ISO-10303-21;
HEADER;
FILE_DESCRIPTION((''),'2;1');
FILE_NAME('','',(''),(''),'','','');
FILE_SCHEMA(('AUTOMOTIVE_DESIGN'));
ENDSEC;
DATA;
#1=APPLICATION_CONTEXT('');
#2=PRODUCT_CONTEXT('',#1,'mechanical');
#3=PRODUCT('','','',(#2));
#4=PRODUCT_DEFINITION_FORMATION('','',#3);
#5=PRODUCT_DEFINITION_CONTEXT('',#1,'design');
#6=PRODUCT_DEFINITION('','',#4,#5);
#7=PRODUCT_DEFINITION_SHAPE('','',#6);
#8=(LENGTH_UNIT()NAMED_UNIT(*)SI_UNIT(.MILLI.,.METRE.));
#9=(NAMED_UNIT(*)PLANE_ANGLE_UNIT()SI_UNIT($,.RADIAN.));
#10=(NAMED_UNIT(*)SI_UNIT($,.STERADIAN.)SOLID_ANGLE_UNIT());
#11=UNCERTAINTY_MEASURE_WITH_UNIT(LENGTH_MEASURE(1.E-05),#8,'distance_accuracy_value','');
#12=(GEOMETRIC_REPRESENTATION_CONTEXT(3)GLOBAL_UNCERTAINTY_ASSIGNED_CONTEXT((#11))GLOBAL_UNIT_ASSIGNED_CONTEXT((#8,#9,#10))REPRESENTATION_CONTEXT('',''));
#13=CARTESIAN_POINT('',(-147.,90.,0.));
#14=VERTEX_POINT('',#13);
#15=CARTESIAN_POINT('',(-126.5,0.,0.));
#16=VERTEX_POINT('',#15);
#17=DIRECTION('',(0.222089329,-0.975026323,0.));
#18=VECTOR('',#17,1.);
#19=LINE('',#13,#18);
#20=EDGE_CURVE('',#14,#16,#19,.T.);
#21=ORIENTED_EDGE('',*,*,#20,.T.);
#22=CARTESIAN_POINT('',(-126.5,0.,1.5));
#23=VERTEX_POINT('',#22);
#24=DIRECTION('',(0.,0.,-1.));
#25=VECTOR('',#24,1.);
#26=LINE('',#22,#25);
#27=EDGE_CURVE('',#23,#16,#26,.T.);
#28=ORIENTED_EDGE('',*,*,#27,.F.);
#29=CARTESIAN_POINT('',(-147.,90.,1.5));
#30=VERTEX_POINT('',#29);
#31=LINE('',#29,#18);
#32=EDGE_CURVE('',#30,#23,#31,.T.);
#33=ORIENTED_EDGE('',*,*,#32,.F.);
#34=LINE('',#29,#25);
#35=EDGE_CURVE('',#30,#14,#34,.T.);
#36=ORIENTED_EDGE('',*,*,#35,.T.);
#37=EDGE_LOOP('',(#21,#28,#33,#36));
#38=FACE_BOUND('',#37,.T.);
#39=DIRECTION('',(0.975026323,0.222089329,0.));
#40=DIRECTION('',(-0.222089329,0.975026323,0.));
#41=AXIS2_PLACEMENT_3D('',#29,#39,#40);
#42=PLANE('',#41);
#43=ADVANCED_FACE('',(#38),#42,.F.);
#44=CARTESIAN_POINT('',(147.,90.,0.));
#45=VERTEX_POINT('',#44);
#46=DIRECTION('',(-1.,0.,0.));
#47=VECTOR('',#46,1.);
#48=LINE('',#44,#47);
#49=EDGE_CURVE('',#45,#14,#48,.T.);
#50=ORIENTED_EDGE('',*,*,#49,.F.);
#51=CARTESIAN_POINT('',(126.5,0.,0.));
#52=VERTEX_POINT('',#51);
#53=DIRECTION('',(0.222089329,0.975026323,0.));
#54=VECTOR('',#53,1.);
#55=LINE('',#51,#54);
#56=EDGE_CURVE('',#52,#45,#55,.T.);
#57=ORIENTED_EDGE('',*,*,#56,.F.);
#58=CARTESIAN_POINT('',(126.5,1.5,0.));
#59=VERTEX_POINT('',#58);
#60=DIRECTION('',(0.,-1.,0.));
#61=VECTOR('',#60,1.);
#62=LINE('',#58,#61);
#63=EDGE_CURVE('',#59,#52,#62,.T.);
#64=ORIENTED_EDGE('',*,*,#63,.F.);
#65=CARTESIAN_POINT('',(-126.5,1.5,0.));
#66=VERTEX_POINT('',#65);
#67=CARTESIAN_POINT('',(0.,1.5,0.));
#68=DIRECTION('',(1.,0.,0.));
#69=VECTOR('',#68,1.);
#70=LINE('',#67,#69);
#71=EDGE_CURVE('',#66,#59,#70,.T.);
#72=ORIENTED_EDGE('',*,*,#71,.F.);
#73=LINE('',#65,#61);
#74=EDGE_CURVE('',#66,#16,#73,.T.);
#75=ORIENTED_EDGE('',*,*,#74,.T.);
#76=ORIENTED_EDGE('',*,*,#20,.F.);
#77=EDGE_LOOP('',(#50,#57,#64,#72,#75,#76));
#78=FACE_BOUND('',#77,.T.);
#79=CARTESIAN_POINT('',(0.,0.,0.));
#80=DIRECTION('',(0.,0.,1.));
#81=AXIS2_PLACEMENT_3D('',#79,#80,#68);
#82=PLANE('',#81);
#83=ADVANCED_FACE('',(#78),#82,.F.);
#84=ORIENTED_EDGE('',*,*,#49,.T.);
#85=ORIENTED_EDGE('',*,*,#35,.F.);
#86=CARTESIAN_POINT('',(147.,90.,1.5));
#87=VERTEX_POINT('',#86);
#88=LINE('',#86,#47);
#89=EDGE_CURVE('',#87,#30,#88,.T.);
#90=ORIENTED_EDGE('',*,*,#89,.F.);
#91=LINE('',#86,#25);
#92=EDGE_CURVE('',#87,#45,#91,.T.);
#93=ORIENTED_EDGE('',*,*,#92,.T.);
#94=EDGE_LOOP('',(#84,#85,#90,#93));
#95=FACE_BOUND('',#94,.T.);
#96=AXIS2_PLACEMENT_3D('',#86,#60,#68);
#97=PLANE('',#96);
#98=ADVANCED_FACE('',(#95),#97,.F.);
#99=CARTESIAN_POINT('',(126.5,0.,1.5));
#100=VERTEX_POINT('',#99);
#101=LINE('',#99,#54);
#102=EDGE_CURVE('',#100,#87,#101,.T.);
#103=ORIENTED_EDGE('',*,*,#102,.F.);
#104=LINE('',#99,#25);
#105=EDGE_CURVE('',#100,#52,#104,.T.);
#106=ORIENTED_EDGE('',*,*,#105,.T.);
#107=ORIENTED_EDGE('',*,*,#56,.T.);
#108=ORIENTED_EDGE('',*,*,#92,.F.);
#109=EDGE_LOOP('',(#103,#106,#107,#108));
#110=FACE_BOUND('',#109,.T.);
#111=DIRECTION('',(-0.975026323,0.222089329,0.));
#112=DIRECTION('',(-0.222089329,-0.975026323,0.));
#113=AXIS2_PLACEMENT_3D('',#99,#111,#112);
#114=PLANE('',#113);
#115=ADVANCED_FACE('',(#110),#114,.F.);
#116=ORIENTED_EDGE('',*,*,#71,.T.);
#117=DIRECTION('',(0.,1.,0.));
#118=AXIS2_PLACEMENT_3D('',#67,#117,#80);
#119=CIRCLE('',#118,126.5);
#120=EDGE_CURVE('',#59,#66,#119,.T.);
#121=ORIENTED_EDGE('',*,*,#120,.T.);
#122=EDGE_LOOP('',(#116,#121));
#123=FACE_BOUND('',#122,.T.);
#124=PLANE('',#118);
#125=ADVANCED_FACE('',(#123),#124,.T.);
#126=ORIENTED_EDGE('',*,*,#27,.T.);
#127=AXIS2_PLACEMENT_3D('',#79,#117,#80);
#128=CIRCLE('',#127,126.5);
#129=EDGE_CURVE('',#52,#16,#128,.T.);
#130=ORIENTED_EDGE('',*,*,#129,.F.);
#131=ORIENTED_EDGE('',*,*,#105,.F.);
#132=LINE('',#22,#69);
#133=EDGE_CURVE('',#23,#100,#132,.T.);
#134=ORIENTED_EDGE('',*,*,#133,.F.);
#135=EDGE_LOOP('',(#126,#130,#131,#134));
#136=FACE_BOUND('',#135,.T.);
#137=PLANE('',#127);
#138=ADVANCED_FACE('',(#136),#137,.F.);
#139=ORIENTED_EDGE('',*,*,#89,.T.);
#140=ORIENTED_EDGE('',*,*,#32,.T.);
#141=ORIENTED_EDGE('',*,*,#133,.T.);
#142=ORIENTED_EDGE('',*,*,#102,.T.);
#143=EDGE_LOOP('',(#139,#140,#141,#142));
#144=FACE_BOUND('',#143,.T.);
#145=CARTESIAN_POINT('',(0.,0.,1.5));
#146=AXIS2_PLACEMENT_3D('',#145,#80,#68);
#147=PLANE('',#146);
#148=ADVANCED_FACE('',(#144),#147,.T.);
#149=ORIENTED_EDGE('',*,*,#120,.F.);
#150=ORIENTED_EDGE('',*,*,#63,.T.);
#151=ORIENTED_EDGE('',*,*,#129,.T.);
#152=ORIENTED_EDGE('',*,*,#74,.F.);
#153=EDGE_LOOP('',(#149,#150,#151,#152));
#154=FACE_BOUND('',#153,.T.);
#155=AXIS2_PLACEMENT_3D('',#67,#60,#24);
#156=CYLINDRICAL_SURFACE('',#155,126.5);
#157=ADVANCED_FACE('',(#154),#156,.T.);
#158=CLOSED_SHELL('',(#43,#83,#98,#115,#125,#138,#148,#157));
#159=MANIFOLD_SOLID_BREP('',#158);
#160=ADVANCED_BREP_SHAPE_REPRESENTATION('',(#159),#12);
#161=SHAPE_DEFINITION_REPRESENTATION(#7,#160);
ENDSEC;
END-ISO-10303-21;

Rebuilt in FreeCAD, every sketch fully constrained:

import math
import FreeCAD as App
import Part
import Sketcher


def add_polygon(sketch, points):
    """Adds a closed chain of lines whose ends are joined by coincident constraints."""
    first, n = sketch.GeometryCount, len(points)
    for a, b in zip(points, points[1:] + points[:1]):
        sketch.addGeometry(Part.LineSegment(App.Vector(*a, 0), App.Vector(*b, 0)), False)
    for i in range(n):
        sketch.addConstraint(Sketcher.Constraint("Coincident", first + i, 2, first + (i + 1) % n, 1))

doc = App.newDocument("Part")
params = doc.addObject("Spreadsheet::Sheet", "Params")
for row, (alias, value) in enumerate([
    ("sketch1_radius", "126.5 mm"),
    ("pad1_length", "1.5 mm"),
    ("sketch2_width", "294 mm"),
    ("sketch2_width2", "253 mm"),
    ("pad2_length", "1.5 mm"),
], start=1):
    params.set(f"A{row}", alias)
    params.set(f"B{row}", "=" + value)
    params.setAlias(f"B{row}", alias)

body = doc.addObject("PartDesign::Body", "Body")

# Sketch on XZ plane
sketch1 = doc.addObject("Sketcher::SketchObject", "Sketch")
body.addObject(sketch1)
sketch1.AttachmentSupport = (doc.XZ_Plane, [""])
sketch1.MapMode = "FlatFace"
sketch1.addGeometry([
    Part.LineSegment(App.Vector(-126, 0, 0), App.Vector(126, 0, 0)),
    Part.ArcOfCircle(Part.Circle(App.Vector(0, 0, 0), App.Vector(0, 0, 1), 126), math.radians(180), math.radians(360)),
], False)
sketch1.addConstraint([
    Sketcher.Constraint("Coincident", 0, 1, 1, 1),
    Sketcher.Constraint("Coincident", 1, 2, 0, 2),
    Sketcher.Constraint("Horizontal", 0),
    Sketcher.Constraint("Coincident", 1, 3, -1, 1),
    Sketcher.Constraint("PointOnObject", 0, 1, -1),
    Sketcher.Constraint("Radius", 1, 126.5),
])
sketch1.setExpression("Constraints[5]", "Params.sketch1_radius")
pad1 = doc.addObject("PartDesign::Pad", "Pad")
body.addObject(pad1)
pad1.Profile = sketch1
pad1.setExpression("Length", "Params.pad1_length")
pad1.Reversed = True

# Sketch on XY plane
sketch2 = doc.addObject("Sketcher::SketchObject", "Sketch001")
body.addObject(sketch2)
sketch2.AttachmentSupport = (doc.XY_Plane, [""])
sketch2.MapMode = "FlatFace"
add_polygon(sketch2, [(126, 0), (147, 90), (-147, 90), (-126, 0)])  # lines 0-3
sketch2.addConstraint([
    Sketcher.Constraint("Horizontal", 1),
    Sketcher.Constraint("Horizontal", 3),
    Sketcher.Constraint("Symmetric", 2, 2, 3, 2, -1, 1),
    Sketcher.Constraint("Equal", 0, 2),
    Sketcher.Constraint("DistanceX", 1, 2, 1, 1, 294.0),
    Sketcher.Constraint("DistanceX", 3, 1, 3, 2, 253.0),
    Sketcher.Constraint("DistanceY", -1, 1, 0, 2, 90.0),
])
sketch2.setExpression("Constraints[8]", "Params.sketch2_width")
sketch2.setExpression("Constraints[9]", "Params.sketch2_width2")
pad2 = doc.addObject("PartDesign::Pad", "Pad001")
body.addObject(pad2)
pad2.Profile = sketch2
pad2.setExpression("Length", "Params.pad2_length")

doc.recompute()
